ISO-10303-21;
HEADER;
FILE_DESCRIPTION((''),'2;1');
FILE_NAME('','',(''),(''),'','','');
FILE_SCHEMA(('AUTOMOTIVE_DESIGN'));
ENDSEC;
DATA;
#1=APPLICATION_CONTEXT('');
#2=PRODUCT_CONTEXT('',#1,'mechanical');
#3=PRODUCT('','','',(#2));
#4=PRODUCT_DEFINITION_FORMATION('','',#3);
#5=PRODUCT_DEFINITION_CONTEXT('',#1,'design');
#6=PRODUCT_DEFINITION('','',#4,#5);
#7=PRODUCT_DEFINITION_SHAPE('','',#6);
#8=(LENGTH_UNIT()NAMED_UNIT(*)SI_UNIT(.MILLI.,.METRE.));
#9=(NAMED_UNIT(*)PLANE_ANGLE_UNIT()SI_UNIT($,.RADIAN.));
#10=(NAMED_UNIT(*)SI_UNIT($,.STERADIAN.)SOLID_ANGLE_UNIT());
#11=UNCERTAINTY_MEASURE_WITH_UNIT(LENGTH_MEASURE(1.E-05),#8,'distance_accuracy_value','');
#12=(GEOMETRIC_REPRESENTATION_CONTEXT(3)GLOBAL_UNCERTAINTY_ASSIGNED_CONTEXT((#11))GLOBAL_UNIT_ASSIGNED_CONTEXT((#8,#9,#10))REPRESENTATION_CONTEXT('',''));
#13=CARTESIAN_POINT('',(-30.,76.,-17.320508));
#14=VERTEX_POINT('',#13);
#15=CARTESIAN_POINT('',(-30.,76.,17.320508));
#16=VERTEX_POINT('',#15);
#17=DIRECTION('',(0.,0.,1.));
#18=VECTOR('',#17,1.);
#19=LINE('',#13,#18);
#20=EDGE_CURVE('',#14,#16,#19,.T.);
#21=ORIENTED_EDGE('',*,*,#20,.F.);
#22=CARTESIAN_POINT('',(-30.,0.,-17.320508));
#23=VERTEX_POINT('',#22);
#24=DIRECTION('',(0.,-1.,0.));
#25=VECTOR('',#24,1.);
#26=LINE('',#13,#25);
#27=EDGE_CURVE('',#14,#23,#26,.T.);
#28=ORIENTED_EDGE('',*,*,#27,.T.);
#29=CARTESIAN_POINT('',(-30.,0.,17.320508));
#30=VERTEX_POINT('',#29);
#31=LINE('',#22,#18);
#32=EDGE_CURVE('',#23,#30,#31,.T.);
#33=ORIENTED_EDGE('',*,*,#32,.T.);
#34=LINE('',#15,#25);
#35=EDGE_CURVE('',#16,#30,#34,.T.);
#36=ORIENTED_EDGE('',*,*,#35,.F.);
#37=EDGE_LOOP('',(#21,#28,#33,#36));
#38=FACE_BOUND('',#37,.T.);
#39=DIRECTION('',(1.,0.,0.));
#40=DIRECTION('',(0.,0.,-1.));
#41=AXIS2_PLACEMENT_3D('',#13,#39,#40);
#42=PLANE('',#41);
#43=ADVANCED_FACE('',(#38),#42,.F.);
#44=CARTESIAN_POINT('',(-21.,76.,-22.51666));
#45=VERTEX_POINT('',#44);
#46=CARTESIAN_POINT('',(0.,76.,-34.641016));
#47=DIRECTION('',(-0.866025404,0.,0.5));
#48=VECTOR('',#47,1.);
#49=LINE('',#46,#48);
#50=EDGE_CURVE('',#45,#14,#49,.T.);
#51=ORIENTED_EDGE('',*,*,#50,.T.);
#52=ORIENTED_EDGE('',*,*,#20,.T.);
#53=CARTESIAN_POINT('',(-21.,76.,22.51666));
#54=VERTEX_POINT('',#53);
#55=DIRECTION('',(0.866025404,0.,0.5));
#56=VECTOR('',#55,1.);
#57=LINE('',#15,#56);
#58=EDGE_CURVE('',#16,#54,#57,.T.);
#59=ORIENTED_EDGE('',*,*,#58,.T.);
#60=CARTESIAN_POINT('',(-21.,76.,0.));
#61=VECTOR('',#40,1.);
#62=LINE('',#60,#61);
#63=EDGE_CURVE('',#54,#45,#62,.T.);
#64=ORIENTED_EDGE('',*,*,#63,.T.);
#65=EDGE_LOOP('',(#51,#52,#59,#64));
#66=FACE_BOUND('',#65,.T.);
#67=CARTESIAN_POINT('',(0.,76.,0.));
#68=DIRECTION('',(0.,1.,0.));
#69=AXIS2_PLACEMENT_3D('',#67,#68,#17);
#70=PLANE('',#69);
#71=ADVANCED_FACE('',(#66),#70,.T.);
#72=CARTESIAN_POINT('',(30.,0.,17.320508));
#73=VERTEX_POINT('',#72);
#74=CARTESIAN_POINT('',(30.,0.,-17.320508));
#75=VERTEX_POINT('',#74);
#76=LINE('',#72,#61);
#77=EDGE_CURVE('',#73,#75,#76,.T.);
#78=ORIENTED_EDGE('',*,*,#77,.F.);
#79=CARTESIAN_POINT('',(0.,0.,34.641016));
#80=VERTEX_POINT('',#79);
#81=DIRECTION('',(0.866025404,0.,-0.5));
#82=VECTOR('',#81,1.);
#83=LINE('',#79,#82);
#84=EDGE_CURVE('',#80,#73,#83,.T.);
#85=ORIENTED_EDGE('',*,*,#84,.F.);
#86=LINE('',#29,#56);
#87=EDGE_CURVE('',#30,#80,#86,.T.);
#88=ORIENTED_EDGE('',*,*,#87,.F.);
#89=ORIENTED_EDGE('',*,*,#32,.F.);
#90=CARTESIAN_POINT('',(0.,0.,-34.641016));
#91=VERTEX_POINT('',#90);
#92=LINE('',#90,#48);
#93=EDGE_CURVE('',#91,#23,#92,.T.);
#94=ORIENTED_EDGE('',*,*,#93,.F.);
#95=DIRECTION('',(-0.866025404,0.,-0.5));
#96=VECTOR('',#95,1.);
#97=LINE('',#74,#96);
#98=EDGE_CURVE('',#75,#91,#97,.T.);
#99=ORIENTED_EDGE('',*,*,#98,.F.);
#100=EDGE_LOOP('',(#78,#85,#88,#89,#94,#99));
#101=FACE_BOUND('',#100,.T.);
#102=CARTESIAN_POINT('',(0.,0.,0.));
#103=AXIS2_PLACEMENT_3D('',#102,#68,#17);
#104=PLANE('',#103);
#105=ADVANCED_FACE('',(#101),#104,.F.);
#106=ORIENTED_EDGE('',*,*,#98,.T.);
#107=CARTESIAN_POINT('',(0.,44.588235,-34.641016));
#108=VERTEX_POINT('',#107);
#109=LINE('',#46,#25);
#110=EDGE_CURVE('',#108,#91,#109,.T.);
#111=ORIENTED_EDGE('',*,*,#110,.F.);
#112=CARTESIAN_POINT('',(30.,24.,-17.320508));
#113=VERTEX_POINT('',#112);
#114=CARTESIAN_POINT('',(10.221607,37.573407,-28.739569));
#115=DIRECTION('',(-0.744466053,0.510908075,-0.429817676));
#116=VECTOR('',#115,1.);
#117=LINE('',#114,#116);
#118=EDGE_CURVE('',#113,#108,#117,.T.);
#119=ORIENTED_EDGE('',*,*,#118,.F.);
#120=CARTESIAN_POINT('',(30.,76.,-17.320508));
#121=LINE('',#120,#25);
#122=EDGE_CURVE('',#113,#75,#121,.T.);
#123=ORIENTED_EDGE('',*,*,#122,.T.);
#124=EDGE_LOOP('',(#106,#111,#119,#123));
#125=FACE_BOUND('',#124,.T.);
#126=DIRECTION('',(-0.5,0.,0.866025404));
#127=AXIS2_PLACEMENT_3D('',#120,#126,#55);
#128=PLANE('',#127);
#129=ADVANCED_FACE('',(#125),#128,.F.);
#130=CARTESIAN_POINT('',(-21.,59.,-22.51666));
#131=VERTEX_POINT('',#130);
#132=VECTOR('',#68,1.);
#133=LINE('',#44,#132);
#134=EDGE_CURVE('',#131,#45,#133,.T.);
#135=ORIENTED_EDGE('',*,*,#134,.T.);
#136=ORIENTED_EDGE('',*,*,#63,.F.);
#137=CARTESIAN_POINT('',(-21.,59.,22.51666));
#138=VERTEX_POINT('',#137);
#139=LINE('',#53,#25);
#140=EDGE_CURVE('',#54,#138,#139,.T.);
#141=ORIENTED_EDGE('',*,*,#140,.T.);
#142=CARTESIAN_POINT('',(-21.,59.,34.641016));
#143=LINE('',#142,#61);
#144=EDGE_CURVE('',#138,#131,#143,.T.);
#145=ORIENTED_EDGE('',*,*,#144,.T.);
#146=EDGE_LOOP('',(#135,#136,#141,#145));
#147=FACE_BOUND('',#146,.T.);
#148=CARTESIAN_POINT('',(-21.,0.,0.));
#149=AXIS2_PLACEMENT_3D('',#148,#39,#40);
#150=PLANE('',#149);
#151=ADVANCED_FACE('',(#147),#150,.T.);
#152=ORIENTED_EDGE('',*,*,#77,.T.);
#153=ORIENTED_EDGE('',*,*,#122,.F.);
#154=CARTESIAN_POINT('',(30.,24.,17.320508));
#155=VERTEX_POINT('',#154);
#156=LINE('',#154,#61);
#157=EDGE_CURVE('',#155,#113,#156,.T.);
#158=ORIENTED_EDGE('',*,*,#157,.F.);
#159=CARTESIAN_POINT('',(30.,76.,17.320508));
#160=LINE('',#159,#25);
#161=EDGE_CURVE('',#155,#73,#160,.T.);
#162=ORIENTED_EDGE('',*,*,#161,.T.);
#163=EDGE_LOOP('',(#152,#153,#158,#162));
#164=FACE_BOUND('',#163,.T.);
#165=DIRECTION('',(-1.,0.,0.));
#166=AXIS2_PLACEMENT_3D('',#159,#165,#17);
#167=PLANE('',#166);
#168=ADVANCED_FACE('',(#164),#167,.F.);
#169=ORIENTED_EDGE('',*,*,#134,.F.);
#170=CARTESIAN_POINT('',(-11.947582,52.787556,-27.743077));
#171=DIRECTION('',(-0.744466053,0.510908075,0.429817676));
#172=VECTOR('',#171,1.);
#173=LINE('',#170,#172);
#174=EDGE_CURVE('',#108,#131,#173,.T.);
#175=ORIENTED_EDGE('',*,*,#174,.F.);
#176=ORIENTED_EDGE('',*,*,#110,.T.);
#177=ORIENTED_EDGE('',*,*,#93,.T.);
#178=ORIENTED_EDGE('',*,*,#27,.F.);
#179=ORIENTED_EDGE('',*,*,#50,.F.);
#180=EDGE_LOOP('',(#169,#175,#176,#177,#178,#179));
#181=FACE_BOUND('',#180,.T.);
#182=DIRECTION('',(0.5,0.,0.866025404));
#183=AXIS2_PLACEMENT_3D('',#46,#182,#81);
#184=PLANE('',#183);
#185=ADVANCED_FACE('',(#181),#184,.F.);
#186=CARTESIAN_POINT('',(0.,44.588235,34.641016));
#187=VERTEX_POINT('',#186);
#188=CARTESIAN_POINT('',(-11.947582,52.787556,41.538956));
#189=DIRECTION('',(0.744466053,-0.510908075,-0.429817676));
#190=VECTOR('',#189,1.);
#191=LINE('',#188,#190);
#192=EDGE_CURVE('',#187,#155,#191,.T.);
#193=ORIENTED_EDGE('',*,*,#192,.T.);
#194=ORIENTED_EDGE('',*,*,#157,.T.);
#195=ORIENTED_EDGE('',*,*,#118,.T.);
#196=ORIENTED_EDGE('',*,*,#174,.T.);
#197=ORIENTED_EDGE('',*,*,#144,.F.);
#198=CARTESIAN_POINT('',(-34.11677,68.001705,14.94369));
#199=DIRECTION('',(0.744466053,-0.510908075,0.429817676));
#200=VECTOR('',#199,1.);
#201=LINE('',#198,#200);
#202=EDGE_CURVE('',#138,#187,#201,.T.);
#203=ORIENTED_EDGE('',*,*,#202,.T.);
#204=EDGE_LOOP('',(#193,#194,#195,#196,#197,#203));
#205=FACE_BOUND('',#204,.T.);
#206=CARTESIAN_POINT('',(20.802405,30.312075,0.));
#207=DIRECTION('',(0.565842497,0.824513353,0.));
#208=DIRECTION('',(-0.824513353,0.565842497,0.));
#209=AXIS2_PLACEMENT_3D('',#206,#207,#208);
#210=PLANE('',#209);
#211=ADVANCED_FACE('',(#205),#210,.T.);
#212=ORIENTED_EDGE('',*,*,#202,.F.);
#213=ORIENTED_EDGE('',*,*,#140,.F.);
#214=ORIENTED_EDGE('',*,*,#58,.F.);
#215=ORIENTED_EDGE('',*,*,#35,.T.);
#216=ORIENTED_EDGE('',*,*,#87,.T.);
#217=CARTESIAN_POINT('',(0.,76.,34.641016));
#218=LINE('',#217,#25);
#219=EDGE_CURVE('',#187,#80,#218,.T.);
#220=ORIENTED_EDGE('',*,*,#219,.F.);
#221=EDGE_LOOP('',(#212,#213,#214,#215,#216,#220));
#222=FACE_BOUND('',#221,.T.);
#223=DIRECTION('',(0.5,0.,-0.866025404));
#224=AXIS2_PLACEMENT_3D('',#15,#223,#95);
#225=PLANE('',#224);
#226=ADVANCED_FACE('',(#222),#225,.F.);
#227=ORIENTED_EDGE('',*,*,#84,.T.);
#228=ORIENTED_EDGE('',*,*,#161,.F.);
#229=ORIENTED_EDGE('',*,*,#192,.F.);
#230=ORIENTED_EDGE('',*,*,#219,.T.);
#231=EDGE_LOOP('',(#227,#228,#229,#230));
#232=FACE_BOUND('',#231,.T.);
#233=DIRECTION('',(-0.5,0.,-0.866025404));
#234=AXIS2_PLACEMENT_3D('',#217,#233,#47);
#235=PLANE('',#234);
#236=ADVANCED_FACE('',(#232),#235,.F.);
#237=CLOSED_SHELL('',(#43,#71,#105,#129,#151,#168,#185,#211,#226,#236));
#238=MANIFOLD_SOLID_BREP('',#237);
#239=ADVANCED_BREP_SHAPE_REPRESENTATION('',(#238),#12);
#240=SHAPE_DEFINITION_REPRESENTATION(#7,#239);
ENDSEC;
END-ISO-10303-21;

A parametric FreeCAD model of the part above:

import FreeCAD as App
import Part
import Sketcher
from FreeCAD import Vector
Q = App.Units.Quantity


def add_polygon(sketch, points):
    """Adds a closed chain of lines whose ends are joined by coincident constraints."""
    first, n = sketch.GeometryCount, len(points)
    for a, b in zip(points, points[1:] + points[:1]):
        sketch.addGeometry(Part.LineSegment(App.Vector(*a, 0), App.Vector(*b, 0)), False)
    for i in range(n):
        sketch.addConstraint(Sketcher.Constraint("Coincident", first + i, 2, first + (i + 1) % n, 1))

doc = App.newDocument("Part")
body = doc.addObject("PartDesign::Body", "Body")

sketch1 = body.newObject("Sketcher::SketchObject", "Sketch")
sketch1.AttachmentSupport = (doc.getObject("XZ_Plane"), [""])
sketch1.MapMode = "FlatFace"
add_polygon(sketch1, [(0, -34.641016), (-30, -17.320508), (-30, 17.320508), (0, 34.641016), (30, 17.320508), (30, -17.320508)])
sketch1.addConstraint([
    Sketcher.Constraint("Vertical", 1),
    Sketcher.Constraint("Vertical", 4),
    Sketcher.Constraint("Symmetric", 0, 2, 3, 2, -1, 1),
    Sketcher.Constraint("Symmetric", 2, 2, 5, 2, -1, 1),
    Sketcher.Constraint("PointOnObject", 2, 2, -2),
    Sketcher.Constraint("Parallel", 2, 5),
    Sketcher.Constraint("Horizontal", 1, 2, 3, 2),
    Sketcher.Constraint("Angle", 0, Q("150 deg")),
    Sketcher.Constraint("DistanceX", 0, 2, -1, 1, 30.0),
    Sketcher.Constraint("DistanceY", 1, 1, 1, 2, 34.641016),
])
pad1 = body.newObject("PartDesign::Pad", "Pad")
pad1.Profile = sketch1
pad1.Length = 76
pad1.Reversed = True

sketch2 = body.newObject("Sketcher::SketchObject", "Sketch001")
sketch2.AttachmentSupport = (doc.getObject("YZ_Plane"), [""])
sketch2.MapMode = "FlatFace"
sketch2.AttachmentOffset = App.Placement(Vector(0, 0, 30), App.Rotation())
add_polygon(sketch2, [(76, 34.641016), (59, 34.641016), (59, -34.641016), (76, -34.641016)])
sketch2.addConstraint([
    Sketcher.Constraint("Horizontal", 0),
    Sketcher.Constraint("Vertical", 1),
    Sketcher.Constraint("Horizontal", 2),
    Sketcher.Constraint("Vertical", 3),
    Sketcher.Constraint("DistanceX", 0, 2, 0, 1, 17.0),
    Sketcher.Constraint("DistanceX", -1, 1, 0, 2, 59.0),
    Sketcher.Constraint("DistanceY", 1, 2, 1, 1, 69.282032),
    Sketcher.Constraint("DistanceY", -1, 1, 0, 2, 34.641016),
])
pocket1 = body.newObject("PartDesign::Pocket", "Pocket")
pocket1.Profile = sketch2
pocket1.Length = 51

sketch3 = body.newObject("Sketcher::SketchObject", "Sketch002")
sketch3.Placement = App.Placement(Vector(20.802405, 30.312075, 0), App.Rotation(Vector(-0.824513353, 0.565842497, 0), Vector(0, 0, -1.000000001), Vector(-0.565842497, -0.824513353, 0), "ZXY"))
add_polygon(sketch3, [(-29.117112, 36.601785), (-29.117112, -36.809161), (50.699488, -36.809161), (50.699488, 36.601785)])
sketch3.addConstraint([
    Sketcher.Constraint("Vertical", 0),
    Sketcher.Constraint("Horizontal", 1),
    Sketcher.Constraint("Vertical", 2),
    Sketcher.Constraint("Horizontal", 3),
    Sketcher.Constraint("DistanceX", 1, 1, 1, 2, 79.8166),
    Sketcher.Constraint("DistanceY", 0, 2, 0, 1, 73.410946),
    Sketcher.Constraint("DistanceY", 0, 2, -1, 1, 36.809161),
    Sketcher.Constraint("DistanceX", 0, 2, -1, 1, 29.117112),
])
pocket2 = body.newObject("PartDesign::Pocket", "Pocket001")
pocket2.Profile = sketch3
pocket2.Length = 51

doc.recompute()
